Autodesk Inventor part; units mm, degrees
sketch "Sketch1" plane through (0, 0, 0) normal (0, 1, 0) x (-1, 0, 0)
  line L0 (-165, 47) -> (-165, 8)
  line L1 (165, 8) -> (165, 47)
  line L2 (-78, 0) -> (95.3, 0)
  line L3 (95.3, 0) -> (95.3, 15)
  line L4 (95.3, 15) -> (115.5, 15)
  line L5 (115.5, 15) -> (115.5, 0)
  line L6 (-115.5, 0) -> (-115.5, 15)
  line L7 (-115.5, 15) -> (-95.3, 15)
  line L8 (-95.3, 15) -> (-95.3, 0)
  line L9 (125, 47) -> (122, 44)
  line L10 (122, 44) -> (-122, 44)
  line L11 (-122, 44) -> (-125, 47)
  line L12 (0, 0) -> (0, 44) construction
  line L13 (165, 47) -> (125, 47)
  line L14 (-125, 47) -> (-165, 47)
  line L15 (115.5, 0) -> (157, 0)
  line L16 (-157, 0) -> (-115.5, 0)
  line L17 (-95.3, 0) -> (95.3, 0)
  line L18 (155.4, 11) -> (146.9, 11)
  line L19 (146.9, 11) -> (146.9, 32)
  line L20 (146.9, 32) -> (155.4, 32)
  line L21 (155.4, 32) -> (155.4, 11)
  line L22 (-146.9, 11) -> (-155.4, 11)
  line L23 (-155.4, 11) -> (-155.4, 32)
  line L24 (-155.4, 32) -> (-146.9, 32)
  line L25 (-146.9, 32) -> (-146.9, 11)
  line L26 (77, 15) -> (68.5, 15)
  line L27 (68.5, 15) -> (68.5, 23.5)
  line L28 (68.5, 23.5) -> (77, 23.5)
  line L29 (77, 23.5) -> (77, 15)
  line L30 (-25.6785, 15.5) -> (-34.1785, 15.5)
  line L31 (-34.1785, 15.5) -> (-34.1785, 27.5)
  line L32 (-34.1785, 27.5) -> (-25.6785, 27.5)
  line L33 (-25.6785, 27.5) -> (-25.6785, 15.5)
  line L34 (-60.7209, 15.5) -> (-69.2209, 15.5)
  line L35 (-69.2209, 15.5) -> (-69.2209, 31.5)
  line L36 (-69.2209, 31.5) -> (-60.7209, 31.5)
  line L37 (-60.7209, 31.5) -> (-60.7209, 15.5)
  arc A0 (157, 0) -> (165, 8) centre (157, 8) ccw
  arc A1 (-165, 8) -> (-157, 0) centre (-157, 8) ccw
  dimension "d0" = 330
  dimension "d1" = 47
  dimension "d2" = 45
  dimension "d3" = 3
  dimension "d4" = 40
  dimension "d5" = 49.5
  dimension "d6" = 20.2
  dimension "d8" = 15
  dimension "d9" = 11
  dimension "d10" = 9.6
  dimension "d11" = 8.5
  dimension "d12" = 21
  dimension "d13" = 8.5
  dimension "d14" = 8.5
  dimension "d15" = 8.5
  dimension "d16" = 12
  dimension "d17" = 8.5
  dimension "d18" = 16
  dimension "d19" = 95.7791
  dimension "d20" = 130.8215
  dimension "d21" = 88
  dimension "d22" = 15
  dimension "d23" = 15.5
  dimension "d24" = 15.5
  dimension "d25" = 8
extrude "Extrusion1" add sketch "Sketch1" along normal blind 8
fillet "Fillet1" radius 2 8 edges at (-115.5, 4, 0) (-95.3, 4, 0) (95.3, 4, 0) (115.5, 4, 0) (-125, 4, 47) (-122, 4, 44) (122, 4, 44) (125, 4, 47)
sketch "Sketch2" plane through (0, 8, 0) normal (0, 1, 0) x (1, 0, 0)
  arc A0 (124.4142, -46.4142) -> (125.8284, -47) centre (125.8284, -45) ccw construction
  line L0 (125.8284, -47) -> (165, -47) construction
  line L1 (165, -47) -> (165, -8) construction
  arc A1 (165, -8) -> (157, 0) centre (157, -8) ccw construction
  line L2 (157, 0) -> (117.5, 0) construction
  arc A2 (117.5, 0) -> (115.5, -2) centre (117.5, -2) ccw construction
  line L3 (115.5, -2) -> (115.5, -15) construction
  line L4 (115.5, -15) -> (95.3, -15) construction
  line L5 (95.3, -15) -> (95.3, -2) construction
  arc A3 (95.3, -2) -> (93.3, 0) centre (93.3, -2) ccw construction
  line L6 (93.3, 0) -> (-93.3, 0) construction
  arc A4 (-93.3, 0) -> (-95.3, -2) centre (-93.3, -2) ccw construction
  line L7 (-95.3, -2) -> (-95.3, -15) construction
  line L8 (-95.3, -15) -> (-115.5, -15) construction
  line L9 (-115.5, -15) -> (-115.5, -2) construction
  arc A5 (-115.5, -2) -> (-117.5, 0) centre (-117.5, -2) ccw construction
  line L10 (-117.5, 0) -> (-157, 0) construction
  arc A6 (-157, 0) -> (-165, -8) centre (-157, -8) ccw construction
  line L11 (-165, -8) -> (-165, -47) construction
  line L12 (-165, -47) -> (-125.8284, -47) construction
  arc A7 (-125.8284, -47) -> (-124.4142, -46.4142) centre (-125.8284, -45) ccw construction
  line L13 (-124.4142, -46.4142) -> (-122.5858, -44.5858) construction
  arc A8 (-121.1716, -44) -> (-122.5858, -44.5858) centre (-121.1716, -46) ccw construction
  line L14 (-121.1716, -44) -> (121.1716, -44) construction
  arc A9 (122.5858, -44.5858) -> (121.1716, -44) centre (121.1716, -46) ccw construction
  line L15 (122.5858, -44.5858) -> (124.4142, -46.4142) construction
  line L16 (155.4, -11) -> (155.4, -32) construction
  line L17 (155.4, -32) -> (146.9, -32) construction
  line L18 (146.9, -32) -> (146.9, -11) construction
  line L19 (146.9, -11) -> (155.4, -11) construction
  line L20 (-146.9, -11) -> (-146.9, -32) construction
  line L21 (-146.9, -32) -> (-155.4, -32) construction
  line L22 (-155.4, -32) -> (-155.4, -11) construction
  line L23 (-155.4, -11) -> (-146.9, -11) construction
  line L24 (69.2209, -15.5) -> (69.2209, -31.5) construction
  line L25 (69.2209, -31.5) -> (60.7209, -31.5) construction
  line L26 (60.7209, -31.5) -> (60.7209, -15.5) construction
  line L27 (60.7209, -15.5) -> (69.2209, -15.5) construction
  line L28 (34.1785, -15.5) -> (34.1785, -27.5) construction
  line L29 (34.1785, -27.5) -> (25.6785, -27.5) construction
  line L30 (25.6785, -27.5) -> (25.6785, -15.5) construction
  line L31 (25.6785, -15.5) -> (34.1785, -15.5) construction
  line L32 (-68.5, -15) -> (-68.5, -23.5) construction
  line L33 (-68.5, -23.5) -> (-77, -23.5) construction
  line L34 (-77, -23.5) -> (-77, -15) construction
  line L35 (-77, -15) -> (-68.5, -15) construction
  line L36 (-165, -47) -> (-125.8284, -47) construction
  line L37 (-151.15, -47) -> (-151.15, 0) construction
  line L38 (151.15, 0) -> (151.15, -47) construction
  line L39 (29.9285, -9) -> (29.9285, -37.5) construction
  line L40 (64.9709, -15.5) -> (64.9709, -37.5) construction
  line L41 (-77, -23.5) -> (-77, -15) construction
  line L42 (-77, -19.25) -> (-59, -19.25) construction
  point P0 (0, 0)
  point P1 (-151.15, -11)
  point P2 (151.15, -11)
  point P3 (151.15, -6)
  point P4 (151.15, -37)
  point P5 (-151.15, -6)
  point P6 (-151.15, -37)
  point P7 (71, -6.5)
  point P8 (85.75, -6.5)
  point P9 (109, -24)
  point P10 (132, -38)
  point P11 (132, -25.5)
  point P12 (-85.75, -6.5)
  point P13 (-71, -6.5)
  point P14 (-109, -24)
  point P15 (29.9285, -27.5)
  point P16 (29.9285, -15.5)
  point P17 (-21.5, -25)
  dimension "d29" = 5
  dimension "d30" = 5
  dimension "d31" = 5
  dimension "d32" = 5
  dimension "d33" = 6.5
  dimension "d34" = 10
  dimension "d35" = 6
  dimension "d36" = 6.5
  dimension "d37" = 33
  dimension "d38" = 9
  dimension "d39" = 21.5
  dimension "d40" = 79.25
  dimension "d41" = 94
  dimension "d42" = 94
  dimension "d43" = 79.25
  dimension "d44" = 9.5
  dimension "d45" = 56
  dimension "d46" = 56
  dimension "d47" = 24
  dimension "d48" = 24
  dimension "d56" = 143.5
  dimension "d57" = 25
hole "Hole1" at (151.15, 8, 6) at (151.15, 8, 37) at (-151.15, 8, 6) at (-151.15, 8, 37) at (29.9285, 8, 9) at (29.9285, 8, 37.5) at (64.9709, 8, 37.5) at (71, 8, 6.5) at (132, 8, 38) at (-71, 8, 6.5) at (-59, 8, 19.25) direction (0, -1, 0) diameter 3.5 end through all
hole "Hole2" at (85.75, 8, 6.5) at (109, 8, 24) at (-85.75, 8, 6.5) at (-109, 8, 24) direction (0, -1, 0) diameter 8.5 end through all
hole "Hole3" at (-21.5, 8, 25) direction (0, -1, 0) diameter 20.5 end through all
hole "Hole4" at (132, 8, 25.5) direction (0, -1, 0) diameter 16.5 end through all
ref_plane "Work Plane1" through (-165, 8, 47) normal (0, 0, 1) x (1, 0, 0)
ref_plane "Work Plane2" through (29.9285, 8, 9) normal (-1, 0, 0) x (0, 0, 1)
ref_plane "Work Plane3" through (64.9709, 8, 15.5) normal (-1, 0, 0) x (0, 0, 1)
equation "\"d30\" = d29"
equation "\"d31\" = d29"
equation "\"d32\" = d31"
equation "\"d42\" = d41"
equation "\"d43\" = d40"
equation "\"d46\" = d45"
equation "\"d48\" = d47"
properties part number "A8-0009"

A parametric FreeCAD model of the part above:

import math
import FreeCAD as App
import Part
import Sketcher
from FreeCAD import Vector


def edges_at(feature, points):
    """Names of the edges that pass closest to the given points."""
    edges = feature.Shape.Edges
    near = lambda p: min(range(len(edges)), key=lambda i: edges[i].distToShape(Part.Vertex(*p))[0])
    return sorted({f"Edge{near(p) + 1}" for p in points})


def add_polygon(sketch, points):
    """Adds a closed chain of lines whose ends are joined by coincident constraints."""
    first, n = sketch.GeometryCount, len(points)
    for a, b in zip(points, points[1:] + points[:1]):
        sketch.addGeometry(Part.LineSegment(App.Vector(*a, 0), App.Vector(*b, 0)), False)
    for i in range(n):
        sketch.addConstraint(Sketcher.Constraint("Coincident", first + i, 2, first + (i + 1) % n, 1))

doc = App.newDocument("Part")
body = doc.addObject("PartDesign::Body", "Body")

sketch1 = body.newObject("Sketcher::SketchObject", "Sketch")
sketch1.AttachmentSupport = (doc.getObject("XZ_Plane"), [""])
sketch1.MapMode = "FlatFace"
sketch1.addGeometry(Part.LineSegment(Vector(125, 47, 0), Vector(165, 47, 0)), False)
sketch1.addGeometry(Part.LineSegment(Vector(165, 47, 0), Vector(165, 8, 0)), False)
sketch1.addGeometry(Part.ArcOfCircle(Part.Circle(Vector(157, 8, 0), Vector(0, 0, 1), 8), math.radians(-90), math.radians(0)), False)
sketch1.addGeometry(Part.LineSegment(Vector(157, 0, 0), Vector(115.5, 0, 0)), False)
sketch1.addGeometry(Part.LineSegment(Vector(115.5, 0, 0), Vector(115.5, 15, 0)), False)
sketch1.addGeometry(Part.LineSegment(Vector(115.5, 15, 0), Vector(95.3, 15, 0)), False)
sketch1.addGeometry(Part.LineSegment(Vector(95.3, 15, 0), Vector(95.3, 0, 0)), False)
sketch1.addGeometry(Part.LineSegment(Vector(95.3, 0, 0), Vector(-95.3, 0, 0)), False)
sketch1.addGeometry(Part.LineSegment(Vector(-95.3, 0, 0), Vector(-95.3, 15, 0)), False)
sketch1.addGeometry(Part.LineSegment(Vector(-95.3, 15, 0), Vector(-115.5, 15, 0)), False)
sketch1.addGeometry(Part.LineSegment(Vector(-115.5, 15, 0), Vector(-115.5, 0, 0)), False)
sketch1.addGeometry(Part.LineSegment(Vector(-115.5, 0, 0), Vector(-157, 0, 0)), False)
sketch1.addGeometry(Part.ArcOfCircle(Part.Circle(Vector(-157, 8, 0), Vector(0, 0, 1), 8), math.radians(180), math.radians(270)), False)
sketch1.addGeometry(Part.LineSegment(Vector(-165, 8, 0), Vector(-165, 47, 0)), False)
sketch1.addGeometry(Part.LineSegment(Vector(-165, 47, 0), Vector(-125, 47, 0)), False)
sketch1.addGeometry(Part.LineSegment(Vector(-125, 47, 0), Vector(-122, 44, 0)), False)
sketch1.addGeometry(Part.LineSegment(Vector(-122, 44, 0), Vector(122, 44, 0)), False)
sketch1.addGeometry(Part.LineSegment(Vector(122, 44, 0), Vector(125, 47, 0)), False)
add_polygon(sketch1, [(146.9, 32), (146.9, 11), (155.4, 11), (155.4, 32)])
add_polygon(sketch1, [(25.7, 27.5), (25.7, 15.5), (34.2, 15.5), (34.2, 27.5)])
add_polygon(sketch1, [(-77, 23.5), (-77, 15), (-68.5, 15), (-68.5, 23.5)])
add_polygon(sketch1, [(-155.4, 32), (-155.4, 11), (-146.9, 11), (-146.9, 32)])
add_polygon(sketch1, [(60.7, 31.5), (60.7, 15.5), (69.2, 15.5), (69.2, 31.5)])
sketch1.addConstraint(Sketcher.Constraint("Coincident", 0, 2, 1, 1))
sketch1.addConstraint(Sketcher.Constraint("Tangent", 1, 2, 2, 2))
sketch1.addConstraint(Sketcher.Constraint("Tangent", 2, 1, 3, 1))
sketch1.addConstraint(Sketcher.Constraint("Coincident", 3, 2, 4, 1))
sketch1.addConstraint(Sketcher.Constraint("Coincident", 4, 2, 5, 1))
sketch1.addConstraint(Sketcher.Constraint("Coincident", 5, 2, 6, 1))
sketch1.addConstraint(Sketcher.Constraint("Coincident", 6, 2, 7, 1))
sketch1.addConstraint(Sketcher.Constraint("Coincident", 7, 2, 8, 1))
sketch1.addConstraint(Sketcher.Constraint("Coincident", 8, 2, 9, 1))
sketch1.addConstraint(Sketcher.Constraint("Coincident", 9, 2, 10, 1))
sketch1.addConstraint(Sketcher.Constraint("Coincident", 10, 2, 11, 1))
sketch1.addConstraint(Sketcher.Constraint("Tangent", 11, 2, 12, 2))
sketch1.addConstraint(Sketcher.Constraint("Tangent", 12, 1, 13, 1))
sketch1.addConstraint(Sketcher.Constraint("Coincident", 13, 2, 14, 1))
sketch1.addConstraint(Sketcher.Constraint("Coincident", 14, 2, 15, 1))
sketch1.addConstraint(Sketcher.Constraint("Coincident", 15, 2, 16, 1))
sketch1.addConstraint(Sketcher.Constraint("Coincident", 16, 2, 17, 1))
sketch1.addConstraint(Sketcher.Constraint("Coincident", 17, 2, 0, 1))
sketch1.addConstraint(Sketcher.Constraint("Horizontal", 0))
sketch1.addConstraint(Sketcher.Constraint("Vertical", 1))
sketch1.addConstraint(Sketcher.Constraint("Horizontal", 3))
sketch1.addConstraint(Sketcher.Constraint("Vertical", 4))
sketch1.addConstraint(Sketcher.Constraint("Horizontal", 5))
sketch1.addConstraint(Sketcher.Constraint("Vertical", 6))
sketch1.addConstraint(Sketcher.Constraint("Horizontal", 7))
sketch1.addConstraint(Sketcher.Constraint("Vertical", 8))
sketch1.addConstraint(Sketcher.Constraint("Horizontal", 9))
sketch1.addConstraint(Sketcher.Constraint("Vertical", 10))
sketch1.addConstraint(Sketcher.Constraint("Horizontal", 11))
sketch1.addConstraint(Sketcher.Constraint("Vertical", 13))
sketch1.addConstraint(Sketcher.Constraint("Horizontal", 14))
sketch1.addConstraint(Sketcher.Constraint("Horizontal", 16))
sketch1.addConstraint(Sketcher.Constraint("Vertical", 18))
sketch1.addConstraint(Sketcher.Constraint("Horizontal", 19))
sketch1.addConstraint(Sketcher.Constraint("Vertical", 20))
sketch1.addConstraint(Sketcher.Constraint("Horizontal", 21))
sketch1.addConstraint(Sketcher.Constraint("Vertical", 22))
sketch1.addConstraint(Sketcher.Constraint("Horizontal", 23))
sketch1.addConstraint(Sketcher.Constraint("Vertical", 24))
sketch1.addConstraint(Sketcher.Constraint("Horizontal", 25))
sketch1.addConstraint(Sketcher.Constraint("Vertical", 26))
sketch1.addConstraint(Sketcher.Constraint("Horizontal", 27))
sketch1.addConstraint(Sketcher.Constraint("Vertical", 28))
sketch1.addConstraint(Sketcher.Constraint("Horizontal", 29))
sketch1.addConstraint(Sketcher.Constraint("Vertical", 30))
sketch1.addConstraint(Sketcher.Constraint("Horizontal", 31))
sketch1.addConstraint(Sketcher.Constraint("Vertical", 32))
sketch1.addConstraint(Sketcher.Constraint("Horizontal", 33))
sketch1.addConstraint(Sketcher.Constraint("Vertical", 34))
sketch1.addConstraint(Sketcher.Constraint("Horizontal", 35))
sketch1.addConstraint(Sketcher.Constraint("Vertical", 36))
sketch1.addConstraint(Sketcher.Constraint("Horizontal", 37))
sketch1.addConstraint(Sketcher.Constraint("Equal", 2, 12))
sketch1.addConstraint(Sketcher.Constraint("Symmetric", 6, 2, 7, 2, -1, 1))
sketch1.addConstraint(Sketcher.Constraint("Symmetric", 3, 2, 10, 2, -1, 1))
sketch1.addConstraint(Sketcher.Constraint("Symmetric", 2, 3, 12, 3, -2))
sketch1.addConstraint(Sketcher.Constraint("Symmetric", 14, 2, 17, 2, -2))
sketch1.addConstraint(Sketcher.Constraint("Symmetric", 19, 2, 30, 2, -2))
sketch1.addConstraint(Sketcher.Constraint("Symmetric", 21, 2, 32, 2, -2))
sketch1.addConstraint(Sketcher.Constraint("Perpendicular", 15, 17))
sketch1.addConstraint(Sketcher.Constraint("Horizontal", 5, 2, 8, 2))
sketch1.addConstraint(Sketcher.Constraint("Horizontal", 9, 2, 26, 2))
sketch1.addConstraint(Sketcher.Constraint("Horizontal", 23, 2, 34, 2))
sketch1.addConstraint(Sketcher.Constraint("Equal", 21, 23))
sketch1.addConstraint(Sketcher.Constraint("Equal", 25, 27))
sketch1.addConstraint(Sketcher.Constraint("Equal", 33, 35))
sketch1.addConstraint(Sketcher.Constraint("Equal", 37, 26))
sketch1.addConstraint(Sketcher.Constraint("Equal", 15, 17))
sketch1.addConstraint(Sketcher.Constraint("Radius", 2, 8.0))
sketch1.addConstraint(Sketcher.Constraint("DistanceX", 0, 1, 0, 2, 40.0))
sketch1.addConstraint(Sketcher.Constraint("DistanceY", 4, 1, 4, 2, 15.0))
sketch1.addConstraint(Sketcher.Constraint("DistanceY", 18, 2, 18, 1, 21.0))
sketch1.addConstraint(Sketcher.Constraint("DistanceY", 22, 2, 22, 1, 12.0))
sketch1.addConstraint(Sketcher.Constraint("DistanceY", 34, 2, 34, 1, 16.0))
sketch1.addConstraint(Sketcher.Constraint("DistanceX", 5, 2, 5, 1, 20.2))
sketch1.addConstraint(Sketcher.Constraint("DistanceX", 19, 1, 19, 2, 8.5))
sketch1.addConstraint(Sketcher.Constraint("DistanceY", -1, 1, 0, 2, 47.0))
sketch1.addConstraint(Sketcher.Constraint("DistanceY", -1, 1, 18, 2, 11.0))
sketch1.addConstraint(Sketcher.Constraint("DistanceX", 14, 2, 15, 2, 3.0))
sketch1.addConstraint(Sketcher.Constraint("DistanceX", 15, 2, 26, 2, 45.0))
sketch1.addConstraint(Sketcher.Constraint("DistanceX", 9, 2, 27, 2, 47.0))
sketch1.addConstraint(Sketcher.Constraint("DistanceY", -1, 1, 22, 2, 15.5))
sketch1.addConstraint(Sketcher.Constraint("DistanceX", 19, 2, 1, 2, 9.6))
sketch1.addConstraint(Sketcher.Constraint("DistanceX", 16, 1, 16, 2, 244.0))
sketch1.addConstraint(Sketcher.Constraint("DistanceX", -1, 1, 34, 2, 60.721))
sketch1.addConstraint(Sketcher.Constraint("DistanceX", -1, 1, 22, 2, 25.6785))
pad1 = body.newObject("PartDesign::Pad", "Pad")
pad1.Profile = sketch1
pad1.Length = 8
pad1.Reversed = True
doc.recompute()

fillet = body.newObject("PartDesign::Fillet", "Fillet")
fillet.Base = (pad1, edges_at(pad1, [
    (-115.5, 4, 0),
    (-95.3, 4, 0),
    (95.3, 4, 0),
    (115.5, 4, 0),
    (-125, 4, 47),
    (-122, 4, 44),
    (122, 4, 44),
    (125, 4, 47),
]))
fillet.Radius = 2

sketch2 = body.newObject("Sketcher::SketchObject", "Sketch001")
sketch2.AttachmentSupport = (doc.getObject("XZ_Plane"), [""])
sketch2.MapMode = "FlatFace"
sketch2.AttachmentOffset = App.Placement(Vector(0, 0, -8), App.Rotation())
sketch2.addGeometry(Part.Circle(Vector(151.2, 6, 0), Vector(0, 0, 1), 1.8), False)
sketch2.addGeometry(Part.Circle(Vector(151.2, 37, 0), Vector(0, 0, 1), 1.8), False)
sketch2.addGeometry(Part.Circle(Vector(-151.2, 6, 0), Vector(0, 0, 1), 1.8), False)
sketch2.addGeometry(Part.Circle(Vector(-151.2, 37, 0), Vector(0, 0, 1), 1.8), False)
sketch2.addGeometry(Part.Circle(Vector(29.9, 9, 0), Vector(0, 0, 1), 1.8), False)
sketch2.addGeometry(Part.Circle(Vector(29.9, 37.5, 0), Vector(0, 0, 1), 1.8), False)
sketch2.addGeometry(Part.Circle(Vector(65, 37.5, 0), Vector(0, 0, 1), 1.8), False)
sketch2.addGeometry(Part.Circle(Vector(71, 6.5, 0), Vector(0, 0, 1), 1.8), False)
sketch2.addGeometry(Part.Circle(Vector(132, 38, 0), Vector(0, 0, 1), 1.8), False)
sketch2.addGeometry(Part.Circle(Vector(-71, 6.5, 0), Vector(0, 0, 1), 1.8), False)
sketch2.addGeometry(Part.Circle(Vector(-59, 19.2, 0), Vector(0, 0, 1), 1.8), False)
sketch2.addConstraint(Sketcher.Constraint("Equal", 0, 1))
sketch2.addConstraint(Sketcher.Constraint("Equal", 1, 2))
sketch2.addConstraint(Sketcher.Constraint("Equal", 2, 3))
sketch2.addConstraint(Sketcher.Constraint("Equal", 3, 4))
sketch2.addConstraint(Sketcher.Constraint("Equal", 4, 5))
sketch2.addConstraint(Sketcher.Constraint("Equal", 5, 6))
sketch2.addConstraint(Sketcher.Constraint("Equal", 6, 7))
sketch2.addConstraint(Sketcher.Constraint("Equal", 7, 8))
sketch2.addConstraint(Sketcher.Constraint("Equal", 8, 9))
sketch2.addConstraint(Sketcher.Constraint("Equal", 9, 10))
sketch2.addConstraint(Sketcher.Constraint("Symmetric", 0, 3, 2, 3, -2))
sketch2.addConstraint(Sketcher.Constraint("Symmetric", 1, 3, 3, 3, -2))
sketch2.addConstraint(Sketcher.Constraint("Symmetric", 7, 3, 9, 3, -2))
sketch2.addConstraint(Sketcher.Constraint("Horizontal", 5, 3, 6, 3))
sketch2.addConstraint(Sketcher.Constraint("Vertical", 0, 3, 1, 3))
sketch2.addConstraint(Sketcher.Constraint("Vertical", 4, 3, 5, 3))
sketch2.addConstraint(Sketcher.Constraint("Diameter", 0, 3.5))
sketch2.addConstraint(Sketcher.Constraint("DistanceY", -1, 1, 0, 3, 6.0))
sketch2.addConstraint(Sketcher.Constraint("DistanceY", -1, 1, 1, 3, 37.0))
sketch2.addConstraint(Sketcher.Constraint("DistanceY", -1, 1, 4, 3, 9.0))
sketch2.addConstraint(Sketcher.Constraint("DistanceX", -1, 1, 7, 3, 71.0))
sketch2.addConstraint(Sketcher.Constraint("DistanceX", -1, 1, 8, 3, 132.0))
sketch2.addConstraint(Sketcher.Constraint("DistanceY", -1, 1, 8, 3, 38.0))
sketch2.addConstraint(Sketcher.Constraint("DistanceX", 10, 3, -1, 1, 59.0))
sketch2.addConstraint(Sketcher.Constraint("DistanceY", 7, 3, 6, 3, 31.0))
sketch2.addConstraint(Sketcher.Constraint("DistanceY", -1, 1, 5, 3, 37.5))
sketch2.addConstraint(Sketcher.Constraint("DistanceX", 2, 3, 0, 3, 302.3))
sketch2.addConstraint(Sketcher.Constraint("DistanceY", -1, 1, 10, 3, 19.25))
sketch2.addConstraint(Sketcher.Constraint("DistanceX", -1, 1, 6, 3, 64.971))
sketch2.addConstraint(Sketcher.Constraint("DistanceX", -1, 1, 4, 3, 29.9285))
doc.recompute()
hole = body.newObject("PartDesign::Hole", "Hole")
hole.Profile = sketch2
hole.ThreadType = "None"
hole.Diameter = 3.5
hole.DepthType = "ThroughAll"
hole.Reversed = True

sketch3 = body.newObject("Sketcher::SketchObject", "Sketch002")
sketch3.AttachmentSupport = (doc.getObject("XZ_Plane"), [""])
sketch3.MapMode = "FlatFace"
sketch3.AttachmentOffset = App.Placement(Vector(0, 0, -8), App.Rotation())
sketch3.addGeometry(Part.Circle(Vector(85.8, 6.5, 0), Vector(0, 0, 1), 4.2), False)
sketch3.addGeometry(Part.Circle(Vector(109, 24, 0), Vector(0, 0, 1), 4.2), False)
sketch3.addGeometry(Part.Circle(Vector(-85.8, 6.5, 0), Vector(0, 0, 1), 4.2), False)
sketch3.addGeometry(Part.Circle(Vector(-109, 24, 0), Vector(0, 0, 1), 4.2), False)
sketch3.addConstraint(Sketcher.Constraint("Equal", 0, 1))
sketch3.addConstraint(Sketcher.Constraint("Equal", 1, 2))
sketch3.addConstraint(Sketcher.Constraint("Equal", 2, 3))
sketch3.addConstraint(Sketcher.Constraint("Symmetric", 0, 3, 2, 3, -2))
sketch3.addConstraint(Sketcher.Constraint("Symmetric", 1, 3, 3, 3, -2))
sketch3.addConstraint(Sketcher.Constraint("Diameter", 0, 8.5))
sketch3.addConstraint(Sketcher.Constraint("DistanceX", -1, 1, 1, 3, 109.0))
sketch3.addConstraint(Sketcher.Constraint("DistanceY", -1, 1, 1, 3, 24.0))
sketch3.addConstraint(Sketcher.Constraint("DistanceY", -1, 1, 0, 3, 6.5))
sketch3.addConstraint(Sketcher.Constraint("DistanceX", 2, 3, 0, 3, 171.5))
doc.recompute()
hole2 = body.newObject("PartDesign::Hole", "Hole001")
hole2.Profile = sketch3
hole2.ThreadType = "None"
hole2.Diameter = 8.5
hole2.DepthType = "ThroughAll"
hole2.Reversed = True

sketch4 = body.newObject("Sketcher::SketchObject", "Sketch003")
sketch4.AttachmentSupport = (doc.getObject("XZ_Plane"), [""])
sketch4.MapMode = "FlatFace"
sketch4.AttachmentOffset = App.Placement(Vector(0, 0, -8), App.Rotation())
sketch4.addGeometry(Part.Circle(Vector(-22, 25, 0), Vector(0, 0, 1), 10), False)
sketch4.addConstraint(Sketcher.Constraint("Diameter", 0, 20.5))
sketch4.addConstraint(Sketcher.Constraint("DistanceY", -1, 1, 0, 3, 25.0))
sketch4.addConstraint(Sketcher.Constraint("DistanceX", 0, 3, -1, 1, 21.5))
doc.recompute()
hole3 = body.newObject("PartDesign::Hole", "Hole002")
hole3.Profile = sketch4
hole3.ThreadType = "None"
hole3.Diameter = 20.5
hole3.DepthType = "ThroughAll"
hole3.Reversed = True

sketch5 = body.newObject("Sketcher::SketchObject", "Sketch004")
sketch5.AttachmentSupport = (doc.getObject("XZ_Plane"), [""])
sketch5.MapMode = "FlatFace"
sketch5.AttachmentOffset = App.Placement(Vector(0, 0, -8), App.Rotation())
sketch5.addGeometry(Part.Circle(Vector(132, 26, 0), Vector(0, 0, 1), 8), False)
sketch5.addConstraint(Sketcher.Constraint("Diameter", 0, 16.5))
sketch5.addConstraint(Sketcher.Constraint("DistanceX", -1, 1, 0, 3, 132.0))
sketch5.addConstraint(Sketcher.Constraint("DistanceY", -1, 1, 0, 3, 25.5))
doc.recompute()
hole4 = body.newObject("PartDesign::Hole", "Hole003")
hole4.Profile = sketch5
hole4.ThreadType = "None"
hole4.Diameter = 16.5
hole4.DepthType = "ThroughAll"
hole4.Reversed = True

doc.recompute()
